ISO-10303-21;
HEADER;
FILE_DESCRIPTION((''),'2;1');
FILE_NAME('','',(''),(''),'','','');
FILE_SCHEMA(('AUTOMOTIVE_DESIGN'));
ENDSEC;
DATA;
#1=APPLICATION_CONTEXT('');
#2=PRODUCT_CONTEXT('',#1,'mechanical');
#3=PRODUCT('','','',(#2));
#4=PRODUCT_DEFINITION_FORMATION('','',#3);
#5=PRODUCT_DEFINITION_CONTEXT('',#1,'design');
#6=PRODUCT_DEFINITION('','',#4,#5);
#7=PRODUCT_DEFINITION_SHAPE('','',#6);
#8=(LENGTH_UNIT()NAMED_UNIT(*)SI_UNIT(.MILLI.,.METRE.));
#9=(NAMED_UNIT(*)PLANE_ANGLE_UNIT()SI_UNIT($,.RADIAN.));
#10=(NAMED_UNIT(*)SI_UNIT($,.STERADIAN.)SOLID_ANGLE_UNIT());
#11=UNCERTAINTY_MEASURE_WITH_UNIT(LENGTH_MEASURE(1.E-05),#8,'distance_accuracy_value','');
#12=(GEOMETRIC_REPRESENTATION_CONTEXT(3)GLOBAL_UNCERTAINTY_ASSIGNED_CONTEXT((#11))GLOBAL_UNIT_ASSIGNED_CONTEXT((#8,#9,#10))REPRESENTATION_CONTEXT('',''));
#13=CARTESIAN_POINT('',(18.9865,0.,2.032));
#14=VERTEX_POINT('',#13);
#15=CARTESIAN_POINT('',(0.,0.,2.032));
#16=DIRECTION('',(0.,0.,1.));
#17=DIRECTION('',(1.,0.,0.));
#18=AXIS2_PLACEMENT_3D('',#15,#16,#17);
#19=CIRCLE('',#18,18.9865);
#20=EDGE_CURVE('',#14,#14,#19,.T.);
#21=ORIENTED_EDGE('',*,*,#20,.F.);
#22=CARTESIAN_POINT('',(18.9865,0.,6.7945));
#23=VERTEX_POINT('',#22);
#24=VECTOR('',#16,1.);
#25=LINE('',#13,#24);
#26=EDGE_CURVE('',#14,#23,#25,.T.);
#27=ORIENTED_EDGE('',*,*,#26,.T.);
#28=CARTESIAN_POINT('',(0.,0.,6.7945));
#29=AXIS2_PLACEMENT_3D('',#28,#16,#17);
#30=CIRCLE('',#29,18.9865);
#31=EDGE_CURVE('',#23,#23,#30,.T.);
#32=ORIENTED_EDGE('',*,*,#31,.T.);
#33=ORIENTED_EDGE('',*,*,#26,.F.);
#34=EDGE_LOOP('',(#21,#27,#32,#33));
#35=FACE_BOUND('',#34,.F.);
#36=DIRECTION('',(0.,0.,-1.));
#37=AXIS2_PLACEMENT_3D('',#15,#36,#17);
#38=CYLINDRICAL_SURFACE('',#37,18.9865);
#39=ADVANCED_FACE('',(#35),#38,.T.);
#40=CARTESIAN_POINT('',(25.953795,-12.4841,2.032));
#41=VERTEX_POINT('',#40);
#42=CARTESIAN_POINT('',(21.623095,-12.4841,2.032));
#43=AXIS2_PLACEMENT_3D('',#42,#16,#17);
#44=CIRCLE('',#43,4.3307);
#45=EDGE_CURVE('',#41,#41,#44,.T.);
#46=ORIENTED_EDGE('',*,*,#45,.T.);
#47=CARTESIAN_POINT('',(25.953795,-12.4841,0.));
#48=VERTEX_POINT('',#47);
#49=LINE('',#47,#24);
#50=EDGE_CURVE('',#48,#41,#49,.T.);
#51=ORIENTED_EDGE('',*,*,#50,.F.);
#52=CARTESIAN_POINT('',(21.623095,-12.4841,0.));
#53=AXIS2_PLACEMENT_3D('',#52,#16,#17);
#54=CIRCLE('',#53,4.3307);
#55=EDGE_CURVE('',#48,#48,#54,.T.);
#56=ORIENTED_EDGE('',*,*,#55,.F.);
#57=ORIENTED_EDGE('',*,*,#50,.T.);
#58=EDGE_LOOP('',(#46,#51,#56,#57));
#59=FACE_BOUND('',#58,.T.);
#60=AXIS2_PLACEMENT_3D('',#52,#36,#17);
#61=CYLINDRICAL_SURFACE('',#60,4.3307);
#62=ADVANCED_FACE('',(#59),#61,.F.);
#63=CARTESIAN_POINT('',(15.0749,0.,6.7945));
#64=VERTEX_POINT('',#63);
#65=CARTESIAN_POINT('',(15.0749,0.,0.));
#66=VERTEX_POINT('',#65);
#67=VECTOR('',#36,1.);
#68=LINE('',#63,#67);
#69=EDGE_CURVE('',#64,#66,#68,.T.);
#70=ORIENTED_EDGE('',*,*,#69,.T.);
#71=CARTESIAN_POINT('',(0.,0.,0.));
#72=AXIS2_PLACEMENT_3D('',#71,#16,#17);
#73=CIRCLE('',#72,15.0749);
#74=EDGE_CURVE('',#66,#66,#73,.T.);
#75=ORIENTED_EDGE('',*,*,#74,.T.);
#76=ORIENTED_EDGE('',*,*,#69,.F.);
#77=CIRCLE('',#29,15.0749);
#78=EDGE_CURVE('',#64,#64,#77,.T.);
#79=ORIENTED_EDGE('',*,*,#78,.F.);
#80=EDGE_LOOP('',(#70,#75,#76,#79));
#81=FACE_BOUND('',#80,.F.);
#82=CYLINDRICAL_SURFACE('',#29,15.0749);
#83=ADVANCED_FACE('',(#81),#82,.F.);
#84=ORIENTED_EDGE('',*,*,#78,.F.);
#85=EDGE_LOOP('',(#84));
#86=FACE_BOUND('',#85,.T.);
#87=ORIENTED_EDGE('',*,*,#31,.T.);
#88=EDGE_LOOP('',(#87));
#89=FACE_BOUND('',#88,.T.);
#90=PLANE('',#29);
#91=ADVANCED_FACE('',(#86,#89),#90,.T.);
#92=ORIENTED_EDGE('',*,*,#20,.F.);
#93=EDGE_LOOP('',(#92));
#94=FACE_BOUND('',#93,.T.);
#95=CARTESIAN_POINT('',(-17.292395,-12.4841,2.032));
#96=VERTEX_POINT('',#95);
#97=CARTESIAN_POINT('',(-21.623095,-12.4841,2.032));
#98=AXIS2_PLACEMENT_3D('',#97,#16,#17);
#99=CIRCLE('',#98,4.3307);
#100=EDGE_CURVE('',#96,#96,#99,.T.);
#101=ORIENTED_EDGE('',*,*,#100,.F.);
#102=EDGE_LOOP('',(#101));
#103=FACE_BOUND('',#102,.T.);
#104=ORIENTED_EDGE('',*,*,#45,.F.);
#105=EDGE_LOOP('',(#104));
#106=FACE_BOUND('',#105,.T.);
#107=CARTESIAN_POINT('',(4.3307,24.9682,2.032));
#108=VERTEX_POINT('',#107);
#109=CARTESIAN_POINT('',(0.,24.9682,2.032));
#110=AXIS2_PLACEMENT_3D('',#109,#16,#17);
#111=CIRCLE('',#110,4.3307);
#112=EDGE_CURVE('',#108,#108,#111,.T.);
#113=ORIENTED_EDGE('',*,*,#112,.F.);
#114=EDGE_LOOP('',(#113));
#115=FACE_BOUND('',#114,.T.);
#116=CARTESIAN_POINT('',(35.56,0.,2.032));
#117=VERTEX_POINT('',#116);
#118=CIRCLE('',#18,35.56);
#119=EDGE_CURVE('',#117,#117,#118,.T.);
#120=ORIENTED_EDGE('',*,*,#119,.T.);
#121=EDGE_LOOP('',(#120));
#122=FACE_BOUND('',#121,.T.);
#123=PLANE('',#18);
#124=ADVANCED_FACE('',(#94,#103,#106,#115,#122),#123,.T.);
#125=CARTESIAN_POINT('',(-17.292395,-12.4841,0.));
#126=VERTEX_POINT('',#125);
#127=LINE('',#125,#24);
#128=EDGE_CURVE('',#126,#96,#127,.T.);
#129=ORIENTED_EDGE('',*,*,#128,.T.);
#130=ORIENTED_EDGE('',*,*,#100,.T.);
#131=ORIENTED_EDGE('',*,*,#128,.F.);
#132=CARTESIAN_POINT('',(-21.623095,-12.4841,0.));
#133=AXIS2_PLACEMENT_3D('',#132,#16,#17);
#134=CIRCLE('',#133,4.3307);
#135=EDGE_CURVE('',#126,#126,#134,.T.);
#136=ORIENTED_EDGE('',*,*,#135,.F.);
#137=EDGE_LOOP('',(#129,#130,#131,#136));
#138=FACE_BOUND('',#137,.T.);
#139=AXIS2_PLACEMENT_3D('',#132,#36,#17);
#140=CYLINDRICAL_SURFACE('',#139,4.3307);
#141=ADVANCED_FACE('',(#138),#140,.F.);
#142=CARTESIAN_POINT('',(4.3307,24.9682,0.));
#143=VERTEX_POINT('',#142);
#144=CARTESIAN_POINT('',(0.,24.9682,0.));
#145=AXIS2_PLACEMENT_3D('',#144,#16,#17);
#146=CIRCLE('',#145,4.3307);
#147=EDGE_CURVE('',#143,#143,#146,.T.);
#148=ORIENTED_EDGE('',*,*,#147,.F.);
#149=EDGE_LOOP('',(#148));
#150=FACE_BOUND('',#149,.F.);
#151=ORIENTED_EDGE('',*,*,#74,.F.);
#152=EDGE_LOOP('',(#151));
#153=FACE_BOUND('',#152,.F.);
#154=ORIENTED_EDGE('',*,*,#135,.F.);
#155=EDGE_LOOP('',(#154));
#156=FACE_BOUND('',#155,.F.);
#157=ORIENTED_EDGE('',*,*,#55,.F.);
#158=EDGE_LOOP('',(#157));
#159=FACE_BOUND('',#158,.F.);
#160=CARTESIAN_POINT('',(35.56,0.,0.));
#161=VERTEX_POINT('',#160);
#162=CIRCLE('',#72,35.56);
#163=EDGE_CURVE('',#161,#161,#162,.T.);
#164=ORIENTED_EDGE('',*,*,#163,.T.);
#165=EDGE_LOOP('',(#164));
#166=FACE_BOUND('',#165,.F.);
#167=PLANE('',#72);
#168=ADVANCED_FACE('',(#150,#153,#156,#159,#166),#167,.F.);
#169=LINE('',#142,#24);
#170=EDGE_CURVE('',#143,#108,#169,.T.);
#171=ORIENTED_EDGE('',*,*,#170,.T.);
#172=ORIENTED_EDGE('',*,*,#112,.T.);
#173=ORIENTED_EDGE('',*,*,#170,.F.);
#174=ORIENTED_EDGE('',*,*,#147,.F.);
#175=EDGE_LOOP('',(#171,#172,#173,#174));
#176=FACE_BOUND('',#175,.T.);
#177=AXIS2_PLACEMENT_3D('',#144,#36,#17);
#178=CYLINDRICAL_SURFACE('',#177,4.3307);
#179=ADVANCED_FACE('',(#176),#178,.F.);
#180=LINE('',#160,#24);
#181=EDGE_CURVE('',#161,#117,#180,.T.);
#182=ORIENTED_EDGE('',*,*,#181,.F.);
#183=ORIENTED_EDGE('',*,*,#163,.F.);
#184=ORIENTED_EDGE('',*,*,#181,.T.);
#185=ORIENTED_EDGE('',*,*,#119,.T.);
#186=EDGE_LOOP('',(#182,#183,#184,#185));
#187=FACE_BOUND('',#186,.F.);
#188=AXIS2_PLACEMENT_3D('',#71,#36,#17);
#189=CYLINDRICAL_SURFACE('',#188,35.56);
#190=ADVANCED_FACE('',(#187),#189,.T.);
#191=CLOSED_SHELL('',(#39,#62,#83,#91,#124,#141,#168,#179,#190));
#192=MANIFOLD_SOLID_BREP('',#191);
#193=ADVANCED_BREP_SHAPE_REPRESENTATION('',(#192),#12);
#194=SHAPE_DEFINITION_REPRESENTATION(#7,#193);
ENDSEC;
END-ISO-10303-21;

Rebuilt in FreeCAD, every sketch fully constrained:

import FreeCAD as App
import Part
import Sketcher
from FreeCAD import Vector
Q = App.Units.Quantity

doc = App.newDocument("Part")
body = doc.addObject("PartDesign::Body", "Body")

# Sketch on XY plane
sketch1 = body.newObject("Sketcher::SketchObject", "Sketch")
sketch1.AttachmentSupport = (doc.getObject("XY_Plane"), [""])
sketch1.MapMode = "FlatFace"
sketch1.addGeometry(Part.Circle(Vector(0, 0, 0), Vector(0, 0, 1), 35.56), False)
sketch1.addGeometry(Part.Circle(Vector(-21.623095, -12.4841, 0), Vector(0, 0, 1), 4.3307), False)
sketch1.addGeometry(Part.Circle(Vector(21.623095, -12.4841, 0), Vector(0, 0, 1), 4.3307), False)
sketch1.addGeometry(Part.Circle(Vector(0, 24.9682, 0), Vector(0, 0, 1), 4.3307), False)
sketch1.addConstraint(Sketcher.Constraint("Coincident", 0, 3, -1, 1))
sketch1.addConstraint(Sketcher.Constraint("Equal", 1, 2))
sketch1.addConstraint(Sketcher.Constraint("Equal", 2, 3))
sketch1.addConstraint(Sketcher.Constraint("Symmetric", 1, 3, 2, 3, -2))
sketch1.addConstraint(Sketcher.Constraint("PointOnObject", 3, 3, -2))
sketch1.addConstraint(Sketcher.Constraint("Diameter", 0, Q("2.8 in")))
sketch1.addConstraint(Sketcher.Constraint("Diameter", 1, Q("0.341 in")))
sketch1.addConstraint(Sketcher.Constraint("DistanceY", -1, 1, 3, 3, Q("0.983 in")))
sketch1.addConstraint(Sketcher.Constraint("DistanceY", 1, 3, -1, 1, Q("0.4915 in")))
sketch1.addConstraint(Sketcher.Constraint("DistanceX", 1, 3, 2, 3, 43.24619))
pad1 = body.newObject("PartDesign::Pad", "Pad")
pad1.Profile = sketch1
pad1.Length = Q("0.08 in")

# Sketch on XY plane
sketch2 = body.newObject("Sketcher::SketchObject", "Sketch001")
sketch2.AttachmentSupport = (doc.getObject("XY_Plane"), [""])
sketch2.MapMode = "FlatFace"
sketch2.AttachmentOffset = App.Placement(Vector(0, 0, 0.08 * 25.4), App.Rotation())
sketch2.addGeometry(Part.Circle(Vector(0, 0, 0), Vector(0, 0, 1), 18.9865), False)
sketch2.addConstraint(Sketcher.Constraint("Coincident", 0, 3, -1, 1))
sketch2.addConstraint(Sketcher.Constraint("Diameter", 0, Q("1.495 in")))
pad2 = body.newObject("PartDesign::Pad", "Pad001")
pad2.Profile = sketch2
pad2.Length = Q("0.1875 in")

# Sketch on XY plane
sketch3 = body.newObject("Sketcher::SketchObject", "Sketch002")
sketch3.AttachmentSupport = (doc.getObject("XY_Plane"), [""])
sketch3.MapMode = "FlatFace"
sketch3.AttachmentOffset = App.Placement(Vector(0, 0, 0.2675 * 25.4), App.Rotation())
sketch3.addGeometry(Part.Circle(Vector(0, 0, 0), Vector(0, 0, 1), 15.0749), False)
sketch3.addConstraint(Sketcher.Constraint("Coincident", 0, 3, -1, 1))
sketch3.addConstraint(Sketcher.Constraint("Diameter", 0, Q("1.187 in")))
pocket1 = body.newObject("PartDesign::Pocket", "Pocket")
pocket1.Profile = sketch3
pocket1.Type = "ThroughAll"

doc.recompute()
